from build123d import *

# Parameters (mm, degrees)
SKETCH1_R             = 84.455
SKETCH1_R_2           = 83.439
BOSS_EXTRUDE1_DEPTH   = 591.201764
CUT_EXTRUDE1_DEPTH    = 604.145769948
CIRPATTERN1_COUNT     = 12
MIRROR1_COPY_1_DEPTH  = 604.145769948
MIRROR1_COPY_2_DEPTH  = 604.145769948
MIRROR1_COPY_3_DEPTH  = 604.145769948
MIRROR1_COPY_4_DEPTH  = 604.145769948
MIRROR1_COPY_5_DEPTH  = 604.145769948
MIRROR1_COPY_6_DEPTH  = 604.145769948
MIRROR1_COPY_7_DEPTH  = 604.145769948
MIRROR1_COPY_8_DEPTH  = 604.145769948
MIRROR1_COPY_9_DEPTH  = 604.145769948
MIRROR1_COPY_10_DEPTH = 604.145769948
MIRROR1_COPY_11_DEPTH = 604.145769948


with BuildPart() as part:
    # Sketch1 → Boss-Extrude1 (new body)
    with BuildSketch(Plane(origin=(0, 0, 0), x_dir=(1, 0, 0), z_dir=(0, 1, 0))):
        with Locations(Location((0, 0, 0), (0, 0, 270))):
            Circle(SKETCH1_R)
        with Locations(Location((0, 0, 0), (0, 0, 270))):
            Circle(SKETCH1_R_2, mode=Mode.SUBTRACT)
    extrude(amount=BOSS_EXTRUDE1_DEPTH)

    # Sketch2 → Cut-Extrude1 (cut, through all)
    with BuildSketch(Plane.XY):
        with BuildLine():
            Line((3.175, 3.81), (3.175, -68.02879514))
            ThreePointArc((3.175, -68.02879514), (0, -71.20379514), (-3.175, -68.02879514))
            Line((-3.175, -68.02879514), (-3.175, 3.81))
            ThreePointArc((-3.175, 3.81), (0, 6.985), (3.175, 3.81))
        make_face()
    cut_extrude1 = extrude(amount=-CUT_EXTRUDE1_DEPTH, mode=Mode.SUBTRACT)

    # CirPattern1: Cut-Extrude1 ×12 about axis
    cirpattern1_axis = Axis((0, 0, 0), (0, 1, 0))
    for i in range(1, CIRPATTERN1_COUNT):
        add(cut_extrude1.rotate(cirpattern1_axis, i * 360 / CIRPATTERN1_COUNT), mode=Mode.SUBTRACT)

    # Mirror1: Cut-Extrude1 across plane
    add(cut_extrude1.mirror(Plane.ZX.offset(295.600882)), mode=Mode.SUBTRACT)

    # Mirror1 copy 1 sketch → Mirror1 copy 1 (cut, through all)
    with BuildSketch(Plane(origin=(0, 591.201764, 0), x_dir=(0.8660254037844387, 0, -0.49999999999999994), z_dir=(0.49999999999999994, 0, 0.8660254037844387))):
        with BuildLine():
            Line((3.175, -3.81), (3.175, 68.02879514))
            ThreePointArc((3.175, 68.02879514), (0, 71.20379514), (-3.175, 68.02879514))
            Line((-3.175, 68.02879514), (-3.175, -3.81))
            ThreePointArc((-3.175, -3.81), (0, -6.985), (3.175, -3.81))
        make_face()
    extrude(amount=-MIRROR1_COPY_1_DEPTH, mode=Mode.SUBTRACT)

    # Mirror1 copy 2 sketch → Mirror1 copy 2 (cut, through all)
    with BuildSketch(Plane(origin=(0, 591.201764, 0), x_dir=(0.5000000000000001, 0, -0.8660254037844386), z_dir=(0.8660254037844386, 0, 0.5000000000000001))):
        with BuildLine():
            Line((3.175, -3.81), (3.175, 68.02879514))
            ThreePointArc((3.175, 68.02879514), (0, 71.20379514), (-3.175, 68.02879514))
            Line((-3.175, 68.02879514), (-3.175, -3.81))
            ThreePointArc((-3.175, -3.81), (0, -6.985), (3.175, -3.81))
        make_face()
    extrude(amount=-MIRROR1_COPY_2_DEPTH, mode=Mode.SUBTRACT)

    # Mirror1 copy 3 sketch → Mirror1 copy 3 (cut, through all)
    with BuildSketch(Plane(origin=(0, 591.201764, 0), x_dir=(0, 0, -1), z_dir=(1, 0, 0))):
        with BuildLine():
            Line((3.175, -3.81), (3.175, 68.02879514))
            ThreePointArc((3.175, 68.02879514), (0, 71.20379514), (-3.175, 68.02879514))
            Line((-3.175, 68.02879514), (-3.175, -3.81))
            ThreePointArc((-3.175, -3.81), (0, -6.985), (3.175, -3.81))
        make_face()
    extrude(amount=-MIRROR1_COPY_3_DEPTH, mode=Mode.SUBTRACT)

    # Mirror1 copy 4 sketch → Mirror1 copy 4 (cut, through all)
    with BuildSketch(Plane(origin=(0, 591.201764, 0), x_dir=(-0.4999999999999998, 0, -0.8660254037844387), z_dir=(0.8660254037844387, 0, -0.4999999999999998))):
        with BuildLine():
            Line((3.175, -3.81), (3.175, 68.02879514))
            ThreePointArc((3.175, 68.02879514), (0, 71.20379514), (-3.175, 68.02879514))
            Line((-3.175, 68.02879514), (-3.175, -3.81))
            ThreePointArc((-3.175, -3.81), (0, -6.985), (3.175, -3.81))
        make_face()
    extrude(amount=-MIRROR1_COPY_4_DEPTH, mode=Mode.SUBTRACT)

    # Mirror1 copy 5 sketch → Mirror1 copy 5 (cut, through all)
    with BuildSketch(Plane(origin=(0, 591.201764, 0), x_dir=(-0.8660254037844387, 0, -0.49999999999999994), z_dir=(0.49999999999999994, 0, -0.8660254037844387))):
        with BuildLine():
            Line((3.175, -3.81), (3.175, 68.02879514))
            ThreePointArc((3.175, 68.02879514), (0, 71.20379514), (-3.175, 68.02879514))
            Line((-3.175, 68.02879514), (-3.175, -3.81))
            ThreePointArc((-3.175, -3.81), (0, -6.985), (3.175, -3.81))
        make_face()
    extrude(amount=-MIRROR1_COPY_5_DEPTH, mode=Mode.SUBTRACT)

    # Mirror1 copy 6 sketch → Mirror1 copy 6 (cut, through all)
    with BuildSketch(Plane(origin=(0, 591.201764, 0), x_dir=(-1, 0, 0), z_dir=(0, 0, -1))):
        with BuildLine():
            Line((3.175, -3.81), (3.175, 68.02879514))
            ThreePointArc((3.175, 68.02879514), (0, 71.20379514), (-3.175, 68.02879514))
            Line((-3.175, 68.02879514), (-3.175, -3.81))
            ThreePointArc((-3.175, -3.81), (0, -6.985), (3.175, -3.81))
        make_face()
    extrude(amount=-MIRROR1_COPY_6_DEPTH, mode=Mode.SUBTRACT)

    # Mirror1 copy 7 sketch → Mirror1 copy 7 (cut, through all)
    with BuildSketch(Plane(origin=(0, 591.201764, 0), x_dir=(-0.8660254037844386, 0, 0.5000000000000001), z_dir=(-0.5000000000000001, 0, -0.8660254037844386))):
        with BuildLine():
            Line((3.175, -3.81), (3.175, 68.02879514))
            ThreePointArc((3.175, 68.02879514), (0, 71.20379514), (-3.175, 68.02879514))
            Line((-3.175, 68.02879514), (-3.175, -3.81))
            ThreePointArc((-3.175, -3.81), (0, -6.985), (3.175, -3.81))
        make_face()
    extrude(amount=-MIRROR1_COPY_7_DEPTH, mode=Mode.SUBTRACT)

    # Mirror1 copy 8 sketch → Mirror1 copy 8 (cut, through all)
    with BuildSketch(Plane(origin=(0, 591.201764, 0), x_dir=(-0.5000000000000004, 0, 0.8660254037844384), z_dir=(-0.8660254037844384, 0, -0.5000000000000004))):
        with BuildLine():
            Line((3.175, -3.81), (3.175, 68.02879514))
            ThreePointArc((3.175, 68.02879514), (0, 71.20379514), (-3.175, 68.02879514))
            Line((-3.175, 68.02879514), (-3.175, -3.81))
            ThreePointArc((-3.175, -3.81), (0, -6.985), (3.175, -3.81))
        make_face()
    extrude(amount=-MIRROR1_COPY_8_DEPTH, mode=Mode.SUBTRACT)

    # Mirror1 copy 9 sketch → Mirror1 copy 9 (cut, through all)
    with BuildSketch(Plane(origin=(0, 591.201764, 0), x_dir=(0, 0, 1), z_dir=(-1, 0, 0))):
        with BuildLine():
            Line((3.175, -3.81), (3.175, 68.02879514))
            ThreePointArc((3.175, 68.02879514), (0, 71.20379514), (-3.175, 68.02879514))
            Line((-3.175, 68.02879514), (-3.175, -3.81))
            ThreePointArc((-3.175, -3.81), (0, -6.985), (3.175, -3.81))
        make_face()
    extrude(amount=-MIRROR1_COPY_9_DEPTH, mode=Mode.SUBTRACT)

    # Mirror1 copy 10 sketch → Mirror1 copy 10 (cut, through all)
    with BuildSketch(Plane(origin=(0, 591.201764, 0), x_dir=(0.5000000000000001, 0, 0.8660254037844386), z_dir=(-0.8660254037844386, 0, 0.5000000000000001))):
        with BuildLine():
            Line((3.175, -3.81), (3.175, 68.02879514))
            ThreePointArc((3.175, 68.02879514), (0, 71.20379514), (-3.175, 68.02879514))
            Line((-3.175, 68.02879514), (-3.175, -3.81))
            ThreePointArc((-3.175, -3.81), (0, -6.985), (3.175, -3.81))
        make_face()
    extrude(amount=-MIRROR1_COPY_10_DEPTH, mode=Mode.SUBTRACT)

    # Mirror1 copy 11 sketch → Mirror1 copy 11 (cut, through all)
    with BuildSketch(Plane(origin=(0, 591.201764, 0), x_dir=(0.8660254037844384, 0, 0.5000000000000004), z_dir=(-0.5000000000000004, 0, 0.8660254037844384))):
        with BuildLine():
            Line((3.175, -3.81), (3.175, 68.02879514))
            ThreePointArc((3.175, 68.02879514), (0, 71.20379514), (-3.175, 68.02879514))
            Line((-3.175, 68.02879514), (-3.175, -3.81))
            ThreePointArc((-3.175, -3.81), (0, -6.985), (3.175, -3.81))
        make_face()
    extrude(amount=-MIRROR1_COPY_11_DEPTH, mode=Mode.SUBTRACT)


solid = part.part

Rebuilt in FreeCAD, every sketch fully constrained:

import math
import FreeCAD as App
import Part
import Sketcher
Q = App.Units.Quantity

doc = App.newDocument("Part")
body = doc.addObject("PartDesign::Body", "Body")

sketch1 = body.newObject("Sketcher::SketchObject", "Sketch")
sketch1.AttachmentSupport = (doc.getObject("XZ_Plane"), [""])
sketch1.MapMode = "FlatFace"
sketch1.addGeometry([
    Part.Circle(App.Vector(0, 0, 0), App.Vector(0, 0, 1), 84),
    Part.Circle(App.Vector(0, 0, 0), App.Vector(0, 0, 1), 83),
], False)
sketch1.addConstraint([
    Sketcher.Constraint("Coincident", 0, 3, -1, 1),
    Sketcher.Constraint("Coincident", 1, 3, -1, 1),
    Sketcher.Constraint("Diameter", 0, Q("6.65 in")),
    Sketcher.Constraint("Diameter", 1, Q("6.57 in")),
])
pad1 = body.newObject("PartDesign::Pad", "Pad")
pad1.Profile = sketch1
pad1.Length = 591.201764
pad1.Reversed = True

sketch2 = body.newObject("Sketcher::SketchObject", "Sketch001")
sketch2.AttachmentSupport = (doc.getObject("XY_Plane"), [""])
sketch2.MapMode = "FlatFace"
sketch2.addGeometry([
    Part.LineSegment(App.Vector(3.2, -68, 0), App.Vector(3.2, 3.8, 0)),
    Part.ArcOfCircle(Part.Circle(App.Vector(0, 3.8, 0), App.Vector(0, 0, 1), 3.2), math.radians(0), math.radians(180)),
    Part.LineSegment(App.Vector(-3.2, 3.8, 0), App.Vector(-3.2, -68, 0)),
    Part.ArcOfCircle(Part.Circle(App.Vector(0, -68, 0), App.Vector(0, 0, 1), 3.2), math.radians(180), math.radians(360)),
], False)
sketch2.addConstraint([
    Sketcher.Constraint("Tangent", 0, 2, 1, 1),
    Sketcher.Constraint("Tangent", 1, 2, 2, 1),
    Sketcher.Constraint("Tangent", 2, 2, 3, 1),
    Sketcher.Constraint("Tangent", 3, 2, 0, 1),
    Sketcher.Constraint("Vertical", 0),
    Sketcher.Constraint("Vertical", 2),
    Sketcher.Constraint("PointOnObject", 1, 3, -2),
    Sketcher.Constraint("Radius", 1, Q("0.125 in")),
    Sketcher.Constraint("DistanceY", -1, 1, 1, 3, Q("0.15 in")),
    Sketcher.Constraint("DistanceY", 0, 1, 0, 2, Q("71.838795 mm")),
])
pocket1 = body.newObject("PartDesign::Pocket", "Pocket")
pocket1.Profile = sketch2
pocket1.Type = "ThroughAll"
doc.recompute()

polarpattern = body.newObject("PartDesign::PolarPattern", "PolarPattern")
polarpattern.Originals = [pocket1]
polarpattern.Axis = (doc.getObject("Y_Axis"), [""])
polarpattern.Angle = 360
polarpattern.Occurrences = 12
body.Tip = polarpattern
doc.recompute()

datumplane = body.newObject("PartDesign::Plane", "DatumPlane")
datumplane.AttachmentSupport = (doc.getObject("XZ_Plane"), [""])
datumplane.MapMode = "FlatFace"
datumplane.AttachmentOffset = App.Placement(App.Vector(0, 0, -295.600882), App.Rotation())
mirrored = body.newObject("PartDesign::Mirrored", "Mirrored")
mirrored.Originals = [pocket1]
mirrored.MirrorPlane = (datumplane, [""])
body.Tip = mirrored

sketch3 = body.newObject("Sketcher::SketchObject", "Sketch002")
sketch3.Placement = App.Placement(App.Vector(0, 591.201764, 0), App.Rotation(App.Vector(0.866025404, 0, -0.5), App.Vector(0, 1, 0), App.Vector(0.5, 0, 0.866025404), "ZXY"))
sketch3.addGeometry([
    Part.LineSegment(App.Vector(3.2, -3.8, 0), App.Vector(3.2, 68, 0)),
    Part.ArcOfCircle(Part.Circle(App.Vector(0, 68, 0), App.Vector(0, 0, 1), 3.2), math.radians(0), math.radians(180)),
    Part.LineSegment(App.Vector(-3.2, 68, 0), App.Vector(-3.2, -3.8, 0)),
    Part.ArcOfCircle(Part.Circle(App.Vector(0, -3.8, 0), App.Vector(0, 0, 1), 3.2), math.radians(180), math.radians(360)),
], False)
sketch3.addConstraint([
    Sketcher.Constraint("Tangent", 0, 2, 1, 1),
    Sketcher.Constraint("Tangent", 1, 2, 2, 1),
    Sketcher.Constraint("Tangent", 2, 2, 3, 1),
    Sketcher.Constraint("Tangent", 3, 2, 0, 1),
    Sketcher.Constraint("Vertical", 0),
    Sketcher.Constraint("Vertical", 2),
    Sketcher.Constraint("PointOnObject", 1, 3, -2),
    Sketcher.Constraint("Radius", 1, Q("0.125 in")),
    Sketcher.Constraint("DistanceY", 3, 3, -1, 1, Q("0.15 in")),
    Sketcher.Constraint("DistanceY", 0, 1, 0, 2, Q("71.838795 mm")),
])
pocket2 = body.newObject("PartDesign::Pocket", "Pocket001")
pocket2.Profile = sketch3
pocket2.Type = "ThroughAll"

sketch4 = body.newObject("Sketcher::SketchObject", "Sketch003")
sketch4.Placement = App.Placement(App.Vector(0, 591.201764, 0), App.Rotation(App.Vector(0.5, 0, -0.866025404), App.Vector(0, 1, 0), App.Vector(0.866025404, 0, 0.5), "ZXY"))
sketch4.addGeometry([
    Part.LineSegment(App.Vector(3.2, -3.8, 0), App.Vector(3.2, 68, 0)),
    Part.ArcOfCircle(Part.Circle(App.Vector(0, 68, 0), App.Vector(0, 0, 1), 3.2), math.radians(0), math.radians(180)),
    Part.LineSegment(App.Vector(-3.2, 68, 0), App.Vector(-3.2, -3.8, 0)),
    Part.ArcOfCircle(Part.Circle(App.Vector(0, -3.8, 0), App.Vector(0, 0, 1), 3.2), math.radians(180), math.radians(360)),
], False)
sketch4.addConstraint([
    Sketcher.Constraint("Tangent", 0, 2, 1, 1),
    Sketcher.Constraint("Tangent", 1, 2, 2, 1),
    Sketcher.Constraint("Tangent", 2, 2, 3, 1),
    Sketcher.Constraint("Tangent", 3, 2, 0, 1),
    Sketcher.Constraint("Vertical", 0),
    Sketcher.Constraint("Vertical", 2),
    Sketcher.Constraint("PointOnObject", 1, 3, -2),
    Sketcher.Constraint("Radius", 1, Q("0.125 in")),
    Sketcher.Constraint("DistanceY", 3, 3, -1, 1, Q("0.15 in")),
    Sketcher.Constraint("DistanceY", 0, 1, 0, 2, Q("71.838795 mm")),
])
pocket3 = body.newObject("PartDesign::Pocket", "Pocket002")
pocket3.Profile = sketch4
pocket3.Type = "ThroughAll"

sketch5 = body.newObject("Sketcher::SketchObject", "Sketch004")
sketch5.AttachmentSupport = (doc.getObject("YZ_Plane"), [""])
sketch5.MapMode = "FlatFace"
sketch5.addGeometry([
    Part.LineSegment(App.Vector(587.4, -3.2, 0), App.Vector(659.2, -3.2, 0)),
    Part.ArcOfCircle(Part.Circle(App.Vector(659.2, 0, 0), App.Vector(0, 0, 1), 3.2), math.radians(-90), math.radians(90)),
    Part.LineSegment(App.Vector(659.2, 3.2, 0), App.Vector(587.4, 3.2, 0)),
    Part.ArcOfCircle(Part.Circle(App.Vector(587.4, 0, 0), App.Vector(0, 0, 1), 3.2), math.radians(90), math.radians(270)),
], False)
sketch5.addConstraint([
    Sketcher.Constraint("Tangent", 0, 2, 1, 1),
    Sketcher.Constraint("Tangent", 1, 2, 2, 1),
    Sketcher.Constraint("Tangent", 2, 2, 3, 1),
    Sketcher.Constraint("Tangent", 3, 2, 0, 1),
    Sketcher.Constraint("Horizontal", 0),
    Sketcher.Constraint("Horizontal", 2),
    Sketcher.Constraint("PointOnObject", 1, 3, -1),
    Sketcher.Constraint("Radius", 1, Q("0.125 in")),
    Sketcher.Constraint("DistanceX", 0, 1, 0, 2, Q("71.838795 mm")),
    Sketcher.Constraint("DistanceX", -1, 1, 1, 3, Q("659.230559 mm")),
])
pocket4 = body.newObject("PartDesign::Pocket", "Pocket003")
pocket4.Profile = sketch5
pocket4.Type = "ThroughAll"

sketch6 = body.newObject("Sketcher::SketchObject", "Sketch005")
sketch6.Placement = App.Placement(App.Vector(0, 591.201764, 0), App.Rotation(App.Vector(-0.5, 0, -0.866025404), App.Vector(0, 1, 0), App.Vector(0.866025404, 0, -0.5), "ZXY"))
sketch6.addGeometry([
    Part.LineSegment(App.Vector(3.2, -3.8, 0), App.Vector(3.2, 68, 0)),
    Part.ArcOfCircle(Part.Circle(App.Vector(0, 68, 0), App.Vector(0, 0, 1), 3.2), math.radians(0), math.radians(180)),
    Part.LineSegment(App.Vector(-3.2, 68, 0), App.Vector(-3.2, -3.8, 0)),
    Part.ArcOfCircle(Part.Circle(App.Vector(0, -3.8, 0), App.Vector(0, 0, 1), 3.2), math.radians(180), math.radians(360)),
], False)
sketch6.addConstraint([
    Sketcher.Constraint("Tangent", 0, 2, 1, 1),
    Sketcher.Constraint("Tangent", 1, 2, 2, 1),
    Sketcher.Constraint("Tangent", 2, 2, 3, 1),
    Sketcher.Constraint("Tangent", 3, 2, 0, 1),
    Sketcher.Constraint("Vertical", 0),
    Sketcher.Constraint("Vertical", 2),
    Sketcher.Constraint("PointOnObject", 1, 3, -2),
    Sketcher.Constraint("Radius", 1, Q("0.125 in")),
    Sketcher.Constraint("DistanceY", 3, 3, -1, 1, Q("0.15 in")),
    Sketcher.Constraint("DistanceY", 0, 1, 0, 2, Q("71.838795 mm")),
])
pocket5 = body.newObject("PartDesign::Pocket", "Pocket004")
pocket5.Profile = sketch6
pocket5.Type = "ThroughAll"

sketch7 = body.newObject("Sketcher::SketchObject", "Sketch006")
sketch7.Placement = App.Placement(App.Vector(0, 591.201764, 0), App.Rotation(App.Vector(-0.866025404, 0, -0.5), App.Vector(0, 1, 0), App.Vector(0.5, 0, -0.866025404), "ZXY"))
sketch7.addGeometry([
    Part.LineSegment(App.Vector(3.2, -3.8, 0), App.Vector(3.2, 68, 0)),
    Part.ArcOfCircle(Part.Circle(App.Vector(0, 68, 0), App.Vector(0, 0, 1), 3.2), math.radians(0), math.radians(180)),
    Part.LineSegment(App.Vector(-3.2, 68, 0), App.Vector(-3.2, -3.8, 0)),
    Part.ArcOfCircle(Part.Circle(App.Vector(0, -3.8, 0), App.Vector(0, 0, 1), 3.2), math.radians(180), math.radians(360)),
], False)
sketch7.addConstraint([
    Sketcher.Constraint("Tangent", 0, 2, 1, 1),
    Sketcher.Constraint("Tangent", 1, 2, 2, 1),
    Sketcher.Constraint("Tangent", 2, 2, 3, 1),
    Sketcher.Constraint("Tangent", 3, 2, 0, 1),
    Sketcher.Constraint("Vertical", 0),
    Sketcher.Constraint("Vertical", 2),
    Sketcher.Constraint("PointOnObject", 1, 3, -2),
    Sketcher.Constraint("Radius", 1, Q("0.125 in")),
    Sketcher.Constraint("DistanceY", 3, 3, -1, 1, Q("0.15 in")),
    Sketcher.Constraint("DistanceY", 0, 1, 0, 2, Q("71.838795 mm")),
])
pocket6 = body.newObject("PartDesign::Pocket", "Pocket005")
pocket6.Profile = sketch7
pocket6.Type = "ThroughAll"

sketch8 = body.newObject("Sketcher::SketchObject", "Sketch007")
sketch8.AttachmentSupport = (doc.getObject("XY_Plane"), [""])
sketch8.MapMode = "FlatFace"
sketch8.addGeometry([
    Part.LineSegment(App.Vector(-3.2, 587.4, 0), App.Vector(-3.2, 659.2, 0)),
    Part.ArcOfCircle(Part.Circle(App.Vector(0, 659.2, 0), App.Vector(0, 0, 1), 3.2), math.radians(0), math.radians(180)),
    Part.LineSegment(App.Vector(3.2, 659.2, 0), App.Vector(3.2, 587.4, 0)),
    Part.ArcOfCircle(Part.Circle(App.Vector(0, 587.4, 0), App.Vector(0, 0, 1), 3.2), math.radians(180), math.radians(360)),
], False)
sketch8.addConstraint([
    Sketcher.Constraint("Tangent", 0, 2, 1, 2),
    Sketcher.Constraint("Tangent", 1, 1, 2, 1),
    Sketcher.Constraint("Tangent", 2, 2, 3, 2),
    Sketcher.Constraint("Tangent", 3, 1, 0, 1),
    Sketcher.Constraint("Vertical", 0),
    Sketcher.Constraint("Vertical", 2),
    Sketcher.Constraint("PointOnObject", 1, 3, -2),
    Sketcher.Constraint("Radius", 1, Q("0.125 in")),
    Sketcher.Constraint("DistanceY", 0, 1, 0, 2, Q("71.838795 mm")),
    Sketcher.Constraint("DistanceY", -1, 1, 1, 3, Q("659.230559 mm")),
])
pocket7 = body.newObject("PartDesign::Pocket", "Pocket006")
pocket7.Profile = sketch8
pocket7.Type = "ThroughAll"
pocket7.Reversed = True

sketch9 = body.newObject("Sketcher::SketchObject", "Sketch008")
sketch9.Placement = App.Placement(App.Vector(0, 591.201764, 0), App.Rotation(App.Vector(-0.866025404, 0, 0.5), App.Vector(0, 1, 0), App.Vector(-0.5, 0, -0.866025404), "ZXY"))
sketch9.addGeometry([
    Part.LineSegment(App.Vector(3.2, -3.8, 0), App.Vector(3.2, 68, 0)),
    Part.ArcOfCircle(Part.Circle(App.Vector(0, 68, 0), App.Vector(0, 0, 1), 3.2), math.radians(0), math.radians(180)),
    Part.LineSegment(App.Vector(-3.2, 68, 0), App.Vector(-3.2, -3.8, 0)),
    Part.ArcOfCircle(Part.Circle(App.Vector(0, -3.8, 0), App.Vector(0, 0, 1), 3.2), math.radians(180), math.radians(360)),
], False)
sketch9.addConstraint([
    Sketcher.Constraint("Tangent", 0, 2, 1, 1),
    Sketcher.Constraint("Tangent", 1, 2, 2, 1),
    Sketcher.Constraint("Tangent", 2, 2, 3, 1),
    Sketcher.Constraint("Tangent", 3, 2, 0, 1),
    Sketcher.Constraint("Vertical", 0),
    Sketcher.Constraint("Vertical", 2),
    Sketcher.Constraint("PointOnObject", 1, 3, -2),
    Sketcher.Constraint("Radius", 1, Q("0.125 in")),
    Sketcher.Constraint("DistanceY", 3, 3, -1, 1, Q("0.15 in")),
    Sketcher.Constraint("DistanceY", 0, 1, 0, 2, Q("71.838795 mm")),
])
pocket8 = body.newObject("PartDesign::Pocket", "Pocket007")
pocket8.Profile = sketch9
pocket8.Type = "ThroughAll"

sketch10 = body.newObject("Sketcher::SketchObject", "Sketch009")
sketch10.Placement = App.Placement(App.Vector(0, 591.201764, 0), App.Rotation(App.Vector(-0.5, 0, 0.866025404), App.Vector(0, 1, 0), App.Vector(-0.866025404, 0, -0.5), "ZXY"))
sketch10.addGeometry([
    Part.LineSegment(App.Vector(3.2, -3.8, 0), App.Vector(3.2, 68, 0)),
    Part.ArcOfCircle(Part.Circle(App.Vector(0, 68, 0), App.Vector(0, 0, 1), 3.2), math.radians(0), math.radians(180)),
    Part.LineSegment(App.Vector(-3.2, 68, 0), App.Vector(-3.2, -3.8, 0)),
    Part.ArcOfCircle(Part.Circle(App.Vector(0, -3.8, 0), App.Vector(0, 0, 1), 3.2), math.radians(180), math.radians(360)),
], False)
sketch10.addConstraint([
    Sketcher.Constraint("Tangent", 0, 2, 1, 1),
    Sketcher.Constraint("Tangent", 1, 2, 2, 1),
    Sketcher.Constraint("Tangent", 2, 2, 3, 1),
    Sketcher.Constraint("Tangent", 3, 2, 0, 1),
    Sketcher.Constraint("Vertical", 0),
    Sketcher.Constraint("Vertical", 2),
    Sketcher.Constraint("PointOnObject", 1, 3, -2),
    Sketcher.Constraint("Radius", 1, Q("0.125 in")),
    Sketcher.Constraint("DistanceY", 3, 3, -1, 1, Q("0.15 in")),
    Sketcher.Constraint("DistanceY", 0, 1, 0, 2, Q("71.838795 mm")),
])
pocket9 = body.newObject("PartDesign::Pocket", "Pocket008")
pocket9.Profile = sketch10
pocket9.Type = "ThroughAll"

sketch11 = body.newObject("Sketcher::SketchObject", "Sketch010")
sketch11.AttachmentSupport = (doc.getObject("YZ_Plane"), [""])
sketch11.MapMode = "FlatFace"
sketch11.addGeometry([
    Part.LineSegment(App.Vector(587.4, 3.2, 0), App.Vector(659.2, 3.2, 0)),
    Part.ArcOfCircle(Part.Circle(App.Vector(659.2, 0, 0), App.Vector(0, 0, 1), 3.2), math.radians(-90), math.radians(90)),
    Part.LineSegment(App.Vector(659.2, -3.2, 0), App.Vector(587.4, -3.2, 0)),
    Part.ArcOfCircle(Part.Circle(App.Vector(587.4, 0, 0), App.Vector(0, 0, 1), 3.2), math.radians(90), math.radians(270)),
], False)
sketch11.addConstraint([
    Sketcher.Constraint("Tangent", 0, 2, 1, 2),
    Sketcher.Constraint("Tangent", 1, 1, 2, 1),
    Sketcher.Constraint("Tangent", 2, 2, 3, 2),
    Sketcher.Constraint("Tangent", 3, 1, 0, 1),
    Sketcher.Constraint("Horizontal", 0),
    Sketcher.Constraint("Horizontal", 2),
    Sketcher.Constraint("PointOnObject", 1, 3, -1),
    Sketcher.Constraint("Radius", 1, Q("0.125 in")),
    Sketcher.Constraint("DistanceX", 0, 1, 0, 2, Q("71.838795 mm")),
    Sketcher.Constraint("DistanceX", -1, 1, 1, 3, Q("659.230559 mm")),
])
pocket10 = body.newObject("PartDesign::Pocket", "Pocket009")
pocket10.Profile = sketch11
pocket10.Type = "ThroughAll"
pocket10.Reversed = True

sketch12 = body.newObject("Sketcher::SketchObject", "Sketch011")
sketch12.Placement = App.Placement(App.Vector(0, 591.201764, 0), App.Rotation(App.Vector(0.5, 0, 0.866025404), App.Vector(0, 1, 0), App.Vector(-0.866025404, 0, 0.5), "ZXY"))
sketch12.addGeometry([
    Part.LineSegment(App.Vector(3.2, -3.8, 0), App.Vector(3.2, 68, 0)),
    Part.ArcOfCircle(Part.Circle(App.Vector(0, 68, 0), App.Vector(0, 0, 1), 3.2), math.radians(0), math.radians(180)),
    Part.LineSegment(App.Vector(-3.2, 68, 0), App.Vector(-3.2, -3.8, 0)),
    Part.ArcOfCircle(Part.Circle(App.Vector(0, -3.8, 0), App.Vector(0, 0, 1), 3.2), math.radians(180), math.radians(360)),
], False)
sketch12.addConstraint([
    Sketcher.Constraint("Tangent", 0, 2, 1, 1),
    Sketcher.Constraint("Tangent", 1, 2, 2, 1),
    Sketcher.Constraint("Tangent", 2, 2, 3, 1),
    Sketcher.Constraint("Tangent", 3, 2, 0, 1),
    Sketcher.Constraint("Vertical", 0),
    Sketcher.Constraint("Vertical", 2),
    Sketcher.Constraint("PointOnObject", 1, 3, -2),
    Sketcher.Constraint("Radius", 1, Q("0.125 in")),
    Sketcher.Constraint("DistanceY", 3, 3, -1, 1, Q("0.15 in")),
    Sketcher.Constraint("DistanceY", 0, 1, 0, 2, Q("71.838795 mm")),
])
pocket11 = body.newObject("PartDesign::Pocket", "Pocket010")
pocket11.Profile = sketch12
pocket11.Type = "ThroughAll"

sketch13 = body.newObject("Sketcher::SketchObject", "Sketch012")
sketch13.Placement = App.Placement(App.Vector(0, 591.201764, 0), App.Rotation(App.Vector(0.866025404, 0, 0.5), App.Vector(0, 1, 0), App.Vector(-0.5, 0, 0.866025404), "ZXY"))
sketch13.addGeometry([
    Part.LineSegment(App.Vector(3.2, -3.8, 0), App.Vector(3.2, 68, 0)),
    Part.ArcOfCircle(Part.Circle(App.Vector(0, 68, 0), App.Vector(0, 0, 1), 3.2), math.radians(0), math.radians(180)),
    Part.LineSegment(App.Vector(-3.2, 68, 0), App.Vector(-3.2, -3.8, 0)),
    Part.ArcOfCircle(Part.Circle(App.Vector(0, -3.8, 0), App.Vector(0, 0, 1), 3.2), math.radians(180), math.radians(360)),
], False)
sketch13.addConstraint([
    Sketcher.Constraint("Tangent", 0, 2, 1, 1),
    Sketcher.Constraint("Tangent", 1, 2, 2, 1),
    Sketcher.Constraint("Tangent", 2, 2, 3, 1),
    Sketcher.Constraint("Tangent", 3, 2, 0, 1),
    Sketcher.Constraint("Vertical", 0),
    Sketcher.Constraint("Vertical", 2),
    Sketcher.Constraint("PointOnObject", 1, 3, -2),
    Sketcher.Constraint("Radius", 1, Q("0.125 in")),
    Sketcher.Constraint("DistanceY", 3, 3, -1, 1, Q("0.15 in")),
    Sketcher.Constraint("DistanceY", 0, 1, 0, 2, Q("71.838795 mm")),
])
pocket12 = body.newObject("PartDesign::Pocket", "Pocket011")
pocket12.Profile = sketch13
pocket12.Type = "ThroughAll"

doc.recompute()
